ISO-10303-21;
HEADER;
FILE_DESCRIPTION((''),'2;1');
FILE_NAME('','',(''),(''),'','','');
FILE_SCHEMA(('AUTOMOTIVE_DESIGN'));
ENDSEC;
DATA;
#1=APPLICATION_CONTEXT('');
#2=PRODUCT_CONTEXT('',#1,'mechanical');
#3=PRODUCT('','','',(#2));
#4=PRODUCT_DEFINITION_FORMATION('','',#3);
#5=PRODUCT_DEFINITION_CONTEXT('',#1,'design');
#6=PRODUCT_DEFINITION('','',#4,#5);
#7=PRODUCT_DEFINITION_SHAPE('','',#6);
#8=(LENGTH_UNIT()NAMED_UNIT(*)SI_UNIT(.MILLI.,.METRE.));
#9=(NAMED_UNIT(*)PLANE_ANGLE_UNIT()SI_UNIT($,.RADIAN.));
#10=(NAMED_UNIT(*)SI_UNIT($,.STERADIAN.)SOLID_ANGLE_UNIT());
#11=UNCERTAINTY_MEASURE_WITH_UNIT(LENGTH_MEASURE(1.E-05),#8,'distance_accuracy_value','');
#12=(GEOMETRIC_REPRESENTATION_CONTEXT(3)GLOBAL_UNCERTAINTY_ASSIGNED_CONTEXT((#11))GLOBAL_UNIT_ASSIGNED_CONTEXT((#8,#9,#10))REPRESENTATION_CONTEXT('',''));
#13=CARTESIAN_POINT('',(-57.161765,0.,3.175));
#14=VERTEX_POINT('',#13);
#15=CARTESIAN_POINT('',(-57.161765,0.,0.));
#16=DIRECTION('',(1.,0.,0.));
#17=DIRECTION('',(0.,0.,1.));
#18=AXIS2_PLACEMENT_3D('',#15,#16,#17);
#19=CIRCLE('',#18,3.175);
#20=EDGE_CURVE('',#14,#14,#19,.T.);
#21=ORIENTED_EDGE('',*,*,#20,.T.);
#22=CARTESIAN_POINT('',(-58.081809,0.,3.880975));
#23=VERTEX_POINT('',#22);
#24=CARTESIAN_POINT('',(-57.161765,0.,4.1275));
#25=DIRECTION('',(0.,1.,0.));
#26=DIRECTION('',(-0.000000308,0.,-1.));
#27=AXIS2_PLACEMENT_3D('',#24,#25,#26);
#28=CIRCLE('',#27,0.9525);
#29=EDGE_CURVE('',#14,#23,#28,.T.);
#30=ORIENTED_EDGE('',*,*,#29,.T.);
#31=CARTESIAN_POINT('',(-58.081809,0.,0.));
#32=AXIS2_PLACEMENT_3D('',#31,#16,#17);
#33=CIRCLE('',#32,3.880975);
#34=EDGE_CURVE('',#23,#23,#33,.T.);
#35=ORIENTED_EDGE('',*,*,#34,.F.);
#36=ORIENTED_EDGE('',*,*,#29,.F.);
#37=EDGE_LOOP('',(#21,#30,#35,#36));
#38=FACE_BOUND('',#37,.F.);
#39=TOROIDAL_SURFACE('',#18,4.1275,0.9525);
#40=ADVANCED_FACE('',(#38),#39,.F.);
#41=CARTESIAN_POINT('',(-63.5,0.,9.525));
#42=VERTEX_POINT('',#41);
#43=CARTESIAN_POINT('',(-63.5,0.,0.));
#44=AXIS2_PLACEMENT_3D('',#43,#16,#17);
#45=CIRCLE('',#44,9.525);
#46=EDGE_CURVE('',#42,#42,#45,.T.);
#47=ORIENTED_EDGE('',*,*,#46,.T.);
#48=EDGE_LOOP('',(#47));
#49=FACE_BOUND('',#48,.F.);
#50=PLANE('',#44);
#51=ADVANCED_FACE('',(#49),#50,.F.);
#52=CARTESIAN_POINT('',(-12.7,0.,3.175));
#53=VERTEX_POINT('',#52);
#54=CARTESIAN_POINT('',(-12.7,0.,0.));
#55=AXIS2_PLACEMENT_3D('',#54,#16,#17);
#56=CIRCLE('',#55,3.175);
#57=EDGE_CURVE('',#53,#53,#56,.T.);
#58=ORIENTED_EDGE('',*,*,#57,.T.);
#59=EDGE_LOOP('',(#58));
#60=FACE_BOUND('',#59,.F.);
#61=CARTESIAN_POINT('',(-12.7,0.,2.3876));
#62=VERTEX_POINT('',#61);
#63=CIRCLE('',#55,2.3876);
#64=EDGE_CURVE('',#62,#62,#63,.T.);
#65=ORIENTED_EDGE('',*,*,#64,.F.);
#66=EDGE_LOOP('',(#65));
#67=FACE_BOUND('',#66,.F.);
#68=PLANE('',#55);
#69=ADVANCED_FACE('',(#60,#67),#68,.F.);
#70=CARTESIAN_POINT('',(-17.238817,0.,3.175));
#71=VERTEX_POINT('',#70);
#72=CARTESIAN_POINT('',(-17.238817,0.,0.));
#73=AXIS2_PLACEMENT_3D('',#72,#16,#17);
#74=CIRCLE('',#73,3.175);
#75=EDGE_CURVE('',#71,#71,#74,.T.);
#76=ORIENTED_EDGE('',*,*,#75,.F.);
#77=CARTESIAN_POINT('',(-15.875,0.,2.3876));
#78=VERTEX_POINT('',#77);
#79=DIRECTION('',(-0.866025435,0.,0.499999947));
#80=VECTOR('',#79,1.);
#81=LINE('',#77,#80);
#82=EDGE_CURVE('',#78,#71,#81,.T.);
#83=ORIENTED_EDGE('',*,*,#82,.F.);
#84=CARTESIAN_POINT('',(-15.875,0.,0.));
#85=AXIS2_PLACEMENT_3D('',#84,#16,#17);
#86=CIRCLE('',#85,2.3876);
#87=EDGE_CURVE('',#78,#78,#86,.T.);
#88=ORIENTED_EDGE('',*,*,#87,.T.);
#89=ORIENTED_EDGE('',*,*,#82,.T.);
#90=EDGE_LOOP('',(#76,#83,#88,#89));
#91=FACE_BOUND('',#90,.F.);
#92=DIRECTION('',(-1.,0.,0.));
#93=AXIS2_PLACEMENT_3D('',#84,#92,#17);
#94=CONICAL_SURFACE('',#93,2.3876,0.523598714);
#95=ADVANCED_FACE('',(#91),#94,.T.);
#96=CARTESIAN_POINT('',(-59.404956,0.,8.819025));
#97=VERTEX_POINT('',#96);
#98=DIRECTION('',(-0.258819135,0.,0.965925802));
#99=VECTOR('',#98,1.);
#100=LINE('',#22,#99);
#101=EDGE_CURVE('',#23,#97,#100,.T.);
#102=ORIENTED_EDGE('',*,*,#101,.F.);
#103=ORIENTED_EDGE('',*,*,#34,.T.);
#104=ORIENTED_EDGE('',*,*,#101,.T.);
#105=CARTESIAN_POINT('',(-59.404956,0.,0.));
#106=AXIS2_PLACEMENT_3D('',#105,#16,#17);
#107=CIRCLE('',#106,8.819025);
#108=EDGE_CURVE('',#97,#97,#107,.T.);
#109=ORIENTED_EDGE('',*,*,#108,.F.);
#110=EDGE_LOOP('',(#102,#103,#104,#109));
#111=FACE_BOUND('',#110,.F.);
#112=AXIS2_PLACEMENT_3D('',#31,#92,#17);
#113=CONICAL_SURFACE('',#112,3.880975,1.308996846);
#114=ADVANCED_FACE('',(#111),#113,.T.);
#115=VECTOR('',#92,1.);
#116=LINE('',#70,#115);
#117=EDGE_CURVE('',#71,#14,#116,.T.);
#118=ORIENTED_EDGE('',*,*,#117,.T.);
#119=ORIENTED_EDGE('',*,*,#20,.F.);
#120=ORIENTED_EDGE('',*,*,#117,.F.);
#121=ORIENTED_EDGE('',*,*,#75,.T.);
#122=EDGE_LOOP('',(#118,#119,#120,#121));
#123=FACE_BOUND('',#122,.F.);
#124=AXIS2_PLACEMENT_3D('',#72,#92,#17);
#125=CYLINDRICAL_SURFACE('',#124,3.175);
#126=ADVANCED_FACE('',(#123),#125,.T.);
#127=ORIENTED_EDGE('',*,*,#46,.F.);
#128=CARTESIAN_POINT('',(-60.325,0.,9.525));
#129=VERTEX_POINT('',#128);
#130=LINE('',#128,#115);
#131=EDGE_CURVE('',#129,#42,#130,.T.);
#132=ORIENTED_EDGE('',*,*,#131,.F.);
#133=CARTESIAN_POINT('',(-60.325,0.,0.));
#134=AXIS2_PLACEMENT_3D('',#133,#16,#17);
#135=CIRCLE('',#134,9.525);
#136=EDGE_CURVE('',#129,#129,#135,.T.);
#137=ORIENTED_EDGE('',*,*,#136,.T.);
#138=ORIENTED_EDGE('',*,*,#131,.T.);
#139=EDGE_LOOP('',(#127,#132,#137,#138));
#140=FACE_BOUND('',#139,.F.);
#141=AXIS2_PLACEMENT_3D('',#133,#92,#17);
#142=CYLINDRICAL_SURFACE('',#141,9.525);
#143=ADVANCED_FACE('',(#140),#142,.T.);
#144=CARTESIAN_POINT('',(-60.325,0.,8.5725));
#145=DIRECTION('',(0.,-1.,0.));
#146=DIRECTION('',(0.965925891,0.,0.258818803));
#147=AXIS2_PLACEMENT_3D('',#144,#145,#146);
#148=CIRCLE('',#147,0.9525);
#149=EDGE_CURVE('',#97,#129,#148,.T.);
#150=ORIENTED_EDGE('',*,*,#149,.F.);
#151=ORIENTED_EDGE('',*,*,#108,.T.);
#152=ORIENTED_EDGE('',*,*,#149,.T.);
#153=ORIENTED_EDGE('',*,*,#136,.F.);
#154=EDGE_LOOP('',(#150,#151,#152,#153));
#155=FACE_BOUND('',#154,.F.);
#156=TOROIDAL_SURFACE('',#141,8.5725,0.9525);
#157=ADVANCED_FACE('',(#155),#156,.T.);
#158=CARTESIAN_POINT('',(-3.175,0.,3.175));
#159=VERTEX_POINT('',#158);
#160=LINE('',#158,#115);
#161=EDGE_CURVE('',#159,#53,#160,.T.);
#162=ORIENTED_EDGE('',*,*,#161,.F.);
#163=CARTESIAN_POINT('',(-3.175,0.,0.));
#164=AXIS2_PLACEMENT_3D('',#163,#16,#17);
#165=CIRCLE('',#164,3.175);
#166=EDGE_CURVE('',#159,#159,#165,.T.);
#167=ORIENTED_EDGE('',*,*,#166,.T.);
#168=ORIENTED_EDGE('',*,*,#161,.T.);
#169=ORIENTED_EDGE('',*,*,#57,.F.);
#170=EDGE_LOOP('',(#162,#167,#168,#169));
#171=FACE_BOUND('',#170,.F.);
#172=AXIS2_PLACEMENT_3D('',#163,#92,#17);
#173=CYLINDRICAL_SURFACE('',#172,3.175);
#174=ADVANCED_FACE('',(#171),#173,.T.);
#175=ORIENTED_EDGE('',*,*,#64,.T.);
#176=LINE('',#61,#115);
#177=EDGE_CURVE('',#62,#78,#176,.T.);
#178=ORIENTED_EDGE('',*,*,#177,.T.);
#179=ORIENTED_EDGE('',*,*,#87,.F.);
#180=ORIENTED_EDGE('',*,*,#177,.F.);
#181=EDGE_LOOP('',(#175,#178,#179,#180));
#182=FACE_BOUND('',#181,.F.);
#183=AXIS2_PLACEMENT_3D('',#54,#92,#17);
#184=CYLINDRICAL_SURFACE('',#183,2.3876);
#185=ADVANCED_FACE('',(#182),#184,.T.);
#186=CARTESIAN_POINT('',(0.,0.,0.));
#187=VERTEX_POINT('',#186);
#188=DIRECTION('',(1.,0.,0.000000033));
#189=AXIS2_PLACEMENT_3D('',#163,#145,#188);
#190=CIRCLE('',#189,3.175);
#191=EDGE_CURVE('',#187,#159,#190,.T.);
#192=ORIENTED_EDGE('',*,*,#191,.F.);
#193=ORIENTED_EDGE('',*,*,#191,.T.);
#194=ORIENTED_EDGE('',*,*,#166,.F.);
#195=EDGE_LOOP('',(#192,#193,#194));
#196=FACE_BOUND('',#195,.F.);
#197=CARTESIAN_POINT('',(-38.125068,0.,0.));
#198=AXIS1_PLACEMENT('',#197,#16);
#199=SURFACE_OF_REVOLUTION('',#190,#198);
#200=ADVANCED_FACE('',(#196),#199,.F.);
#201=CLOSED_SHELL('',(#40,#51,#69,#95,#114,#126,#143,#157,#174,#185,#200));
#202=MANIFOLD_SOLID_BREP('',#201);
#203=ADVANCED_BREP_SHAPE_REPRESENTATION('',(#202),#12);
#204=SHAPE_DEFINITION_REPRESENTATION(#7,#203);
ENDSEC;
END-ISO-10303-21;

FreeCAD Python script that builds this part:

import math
import FreeCAD as App
import Part
import Sketcher
from FreeCAD import Vector
Q = App.Units.Quantity

doc = App.newDocument("Part")
params = doc.addObject("Spreadsheet::Sheet", "Params")
for row, (alias, value) in enumerate([
    ("sketch1_width", "2.5 in"),
    ("sketch1_radius", "0.125 in"),
    ("sketch1_height", "0.031 in"),
    ("revolution_angle", "360 deg"),
], start=1):
    params.set(f"A{row}", alias)
    params.set(f"B{row}", "=" + value)
    params.setAlias(f"B{row}", alias)

body = doc.addObject("PartDesign::Body", "Body")

sketch1 = body.newObject("Sketcher::SketchObject", "Sketch")
sketch1.AttachmentSupport = (doc.getObject("XZ_Plane"), [""])
sketch1.MapMode = "FlatFace"
sketch1.addGeometry(Part.LineSegment(Vector(-63.5, 9.5, 0), Vector(-63.5, 0, 0)), False)
sketch1.addGeometry(Part.LineSegment(Vector(-63.5, 0, 0), Vector(0, 0, 0)), False)
sketch1.addGeometry(Part.ArcOfCircle(Part.Circle(Vector(-3.2, 0, 0), Vector(0, 0, 1), 3.2), math.radians(0), math.radians(90)), False)
sketch1.addGeometry(Part.LineSegment(Vector(-3.2, 3.2, 0), Vector(-12.7, 3.2, 0)), False)
sketch1.addGeometry(Part.LineSegment(Vector(-12.7, 3.2, 0), Vector(-12.7, 2.4, 0)), False)
sketch1.addGeometry(Part.LineSegment(Vector(-12.7, 2.4, 0), Vector(-15.9, 2.4, 0)), False)
sketch1.addGeometry(Part.LineSegment(Vector(-15.9, 2.4, 0), Vector(-17.2, 3.2, 0)), False)
sketch1.addGeometry(Part.LineSegment(Vector(-17.2, 3.2, 0), Vector(-57.2, 3.2, 0)), False)
sketch1.addGeometry(Part.ArcOfCircle(Part.Circle(Vector(-57.2, 4.1, 0), Vector(0, 0, 1), 1), math.radians(-165), math.radians(-90)), False)
sketch1.addGeometry(Part.LineSegment(Vector(-58.1, 3.9, 0), Vector(-59.4, 8.8, 0)), False)
sketch1.addGeometry(Part.ArcOfCircle(Part.Circle(Vector(-60.3, 8.6, 0), Vector(0, 0, 1), 1), math.radians(15), math.radians(90)), False)
sketch1.addGeometry(Part.LineSegment(Vector(-60.3, 9.5, 0), Vector(-63.5, 9.5, 0)), False)
sketch1.addConstraint(Sketcher.Constraint("Coincident", 0, 2, 1, 1))
sketch1.addConstraint(Sketcher.Constraint("Coincident", 1, 2, 2, 1))
sketch1.addConstraint(Sketcher.Constraint("Tangent", 2, 2, 3, 1))
sketch1.addConstraint(Sketcher.Constraint("Coincident", 3, 2, 4, 1))
sketch1.addConstraint(Sketcher.Constraint("Coincident", 4, 2, 5, 1))
sketch1.addConstraint(Sketcher.Constraint("Coincident", 5, 2, 6, 1))
sketch1.addConstraint(Sketcher.Constraint("Coincident", 6, 2, 7, 1))
sketch1.addConstraint(Sketcher.Constraint("Tangent", 7, 2, 8, 2))
sketch1.addConstraint(Sketcher.Constraint("Tangent", 8, 1, 9, 1))
sketch1.addConstraint(Sketcher.Constraint("Tangent", 9, 2, 10, 1))
sketch1.addConstraint(Sketcher.Constraint("Tangent", 10, 2, 11, 1))
sketch1.addConstraint(Sketcher.Constraint("Coincident", 11, 2, 0, 1))
sketch1.addConstraint(Sketcher.Constraint("Vertical", 0))
sketch1.addConstraint(Sketcher.Constraint("Horizontal", 1))
sketch1.addConstraint(Sketcher.Constraint("Horizontal", 3))
sketch1.addConstraint(Sketcher.Constraint("Vertical", 4))
sketch1.addConstraint(Sketcher.Constraint("Horizontal", 5))
sketch1.addConstraint(Sketcher.Constraint("Horizontal", 7))
sketch1.addConstraint(Sketcher.Constraint("Horizontal", 11))
sketch1.addConstraint(Sketcher.Constraint("Coincident", 1, 2, -1, 1))
sketch1.addConstraint(Sketcher.Constraint("Equal", 8, 10))
sketch1.addConstraint(Sketcher.Constraint("PointOnObject", 2, 3, -1))
sketch1.addConstraint(Sketcher.Constraint("Horizontal", 3, 2, 6, 2))
sketch1.addConstraint(Sketcher.Constraint("Equal", 5, 11))
sketch1.addConstraint(Sketcher.Constraint("Equal", 3, 0))
sketch1.addConstraint(Sketcher.Constraint("DistanceX", 1, 1, 1, 2, Q("2.5 in")))
sketch1.addConstraint(Sketcher.Constraint("Angle", 6, Q("150.000004 deg")))
sketch1.addConstraint(Sketcher.Constraint("Angle", 9, Q("105.000005 deg")))
sketch1.addConstraint(Sketcher.Constraint("Radius", 2, Q("0.125 in")))
sketch1.addConstraint(Sketcher.Constraint("DistanceX", 3, 2, -1, 1, Q("0.5 in")))
sketch1.addConstraint(Sketcher.Constraint("Radius", 8, Q("0.0375 in")))
sketch1.addConstraint(Sketcher.Constraint("DistanceX", 5, 2, 2, 2, Q("0.5 in")))
sketch1.addConstraint(Sketcher.Constraint("DistanceY", 4, 2, 4, 1, Q("0.031 in")))
sketch1.setExpression("Constraints[25]", "Params.sketch1_width")
sketch1.setExpression("Constraints[28]", "Params.sketch1_radius")
sketch1.setExpression("Constraints[32]", "Params.sketch1_height")
revolution = body.newObject("PartDesign::Revolution", "Revolution")
revolution.Profile = sketch1
revolution.ReferenceAxis = (sketch1, ["H_Axis"])
revolution.setExpression("Angle", "Params.revolution_angle")

doc.recompute()
